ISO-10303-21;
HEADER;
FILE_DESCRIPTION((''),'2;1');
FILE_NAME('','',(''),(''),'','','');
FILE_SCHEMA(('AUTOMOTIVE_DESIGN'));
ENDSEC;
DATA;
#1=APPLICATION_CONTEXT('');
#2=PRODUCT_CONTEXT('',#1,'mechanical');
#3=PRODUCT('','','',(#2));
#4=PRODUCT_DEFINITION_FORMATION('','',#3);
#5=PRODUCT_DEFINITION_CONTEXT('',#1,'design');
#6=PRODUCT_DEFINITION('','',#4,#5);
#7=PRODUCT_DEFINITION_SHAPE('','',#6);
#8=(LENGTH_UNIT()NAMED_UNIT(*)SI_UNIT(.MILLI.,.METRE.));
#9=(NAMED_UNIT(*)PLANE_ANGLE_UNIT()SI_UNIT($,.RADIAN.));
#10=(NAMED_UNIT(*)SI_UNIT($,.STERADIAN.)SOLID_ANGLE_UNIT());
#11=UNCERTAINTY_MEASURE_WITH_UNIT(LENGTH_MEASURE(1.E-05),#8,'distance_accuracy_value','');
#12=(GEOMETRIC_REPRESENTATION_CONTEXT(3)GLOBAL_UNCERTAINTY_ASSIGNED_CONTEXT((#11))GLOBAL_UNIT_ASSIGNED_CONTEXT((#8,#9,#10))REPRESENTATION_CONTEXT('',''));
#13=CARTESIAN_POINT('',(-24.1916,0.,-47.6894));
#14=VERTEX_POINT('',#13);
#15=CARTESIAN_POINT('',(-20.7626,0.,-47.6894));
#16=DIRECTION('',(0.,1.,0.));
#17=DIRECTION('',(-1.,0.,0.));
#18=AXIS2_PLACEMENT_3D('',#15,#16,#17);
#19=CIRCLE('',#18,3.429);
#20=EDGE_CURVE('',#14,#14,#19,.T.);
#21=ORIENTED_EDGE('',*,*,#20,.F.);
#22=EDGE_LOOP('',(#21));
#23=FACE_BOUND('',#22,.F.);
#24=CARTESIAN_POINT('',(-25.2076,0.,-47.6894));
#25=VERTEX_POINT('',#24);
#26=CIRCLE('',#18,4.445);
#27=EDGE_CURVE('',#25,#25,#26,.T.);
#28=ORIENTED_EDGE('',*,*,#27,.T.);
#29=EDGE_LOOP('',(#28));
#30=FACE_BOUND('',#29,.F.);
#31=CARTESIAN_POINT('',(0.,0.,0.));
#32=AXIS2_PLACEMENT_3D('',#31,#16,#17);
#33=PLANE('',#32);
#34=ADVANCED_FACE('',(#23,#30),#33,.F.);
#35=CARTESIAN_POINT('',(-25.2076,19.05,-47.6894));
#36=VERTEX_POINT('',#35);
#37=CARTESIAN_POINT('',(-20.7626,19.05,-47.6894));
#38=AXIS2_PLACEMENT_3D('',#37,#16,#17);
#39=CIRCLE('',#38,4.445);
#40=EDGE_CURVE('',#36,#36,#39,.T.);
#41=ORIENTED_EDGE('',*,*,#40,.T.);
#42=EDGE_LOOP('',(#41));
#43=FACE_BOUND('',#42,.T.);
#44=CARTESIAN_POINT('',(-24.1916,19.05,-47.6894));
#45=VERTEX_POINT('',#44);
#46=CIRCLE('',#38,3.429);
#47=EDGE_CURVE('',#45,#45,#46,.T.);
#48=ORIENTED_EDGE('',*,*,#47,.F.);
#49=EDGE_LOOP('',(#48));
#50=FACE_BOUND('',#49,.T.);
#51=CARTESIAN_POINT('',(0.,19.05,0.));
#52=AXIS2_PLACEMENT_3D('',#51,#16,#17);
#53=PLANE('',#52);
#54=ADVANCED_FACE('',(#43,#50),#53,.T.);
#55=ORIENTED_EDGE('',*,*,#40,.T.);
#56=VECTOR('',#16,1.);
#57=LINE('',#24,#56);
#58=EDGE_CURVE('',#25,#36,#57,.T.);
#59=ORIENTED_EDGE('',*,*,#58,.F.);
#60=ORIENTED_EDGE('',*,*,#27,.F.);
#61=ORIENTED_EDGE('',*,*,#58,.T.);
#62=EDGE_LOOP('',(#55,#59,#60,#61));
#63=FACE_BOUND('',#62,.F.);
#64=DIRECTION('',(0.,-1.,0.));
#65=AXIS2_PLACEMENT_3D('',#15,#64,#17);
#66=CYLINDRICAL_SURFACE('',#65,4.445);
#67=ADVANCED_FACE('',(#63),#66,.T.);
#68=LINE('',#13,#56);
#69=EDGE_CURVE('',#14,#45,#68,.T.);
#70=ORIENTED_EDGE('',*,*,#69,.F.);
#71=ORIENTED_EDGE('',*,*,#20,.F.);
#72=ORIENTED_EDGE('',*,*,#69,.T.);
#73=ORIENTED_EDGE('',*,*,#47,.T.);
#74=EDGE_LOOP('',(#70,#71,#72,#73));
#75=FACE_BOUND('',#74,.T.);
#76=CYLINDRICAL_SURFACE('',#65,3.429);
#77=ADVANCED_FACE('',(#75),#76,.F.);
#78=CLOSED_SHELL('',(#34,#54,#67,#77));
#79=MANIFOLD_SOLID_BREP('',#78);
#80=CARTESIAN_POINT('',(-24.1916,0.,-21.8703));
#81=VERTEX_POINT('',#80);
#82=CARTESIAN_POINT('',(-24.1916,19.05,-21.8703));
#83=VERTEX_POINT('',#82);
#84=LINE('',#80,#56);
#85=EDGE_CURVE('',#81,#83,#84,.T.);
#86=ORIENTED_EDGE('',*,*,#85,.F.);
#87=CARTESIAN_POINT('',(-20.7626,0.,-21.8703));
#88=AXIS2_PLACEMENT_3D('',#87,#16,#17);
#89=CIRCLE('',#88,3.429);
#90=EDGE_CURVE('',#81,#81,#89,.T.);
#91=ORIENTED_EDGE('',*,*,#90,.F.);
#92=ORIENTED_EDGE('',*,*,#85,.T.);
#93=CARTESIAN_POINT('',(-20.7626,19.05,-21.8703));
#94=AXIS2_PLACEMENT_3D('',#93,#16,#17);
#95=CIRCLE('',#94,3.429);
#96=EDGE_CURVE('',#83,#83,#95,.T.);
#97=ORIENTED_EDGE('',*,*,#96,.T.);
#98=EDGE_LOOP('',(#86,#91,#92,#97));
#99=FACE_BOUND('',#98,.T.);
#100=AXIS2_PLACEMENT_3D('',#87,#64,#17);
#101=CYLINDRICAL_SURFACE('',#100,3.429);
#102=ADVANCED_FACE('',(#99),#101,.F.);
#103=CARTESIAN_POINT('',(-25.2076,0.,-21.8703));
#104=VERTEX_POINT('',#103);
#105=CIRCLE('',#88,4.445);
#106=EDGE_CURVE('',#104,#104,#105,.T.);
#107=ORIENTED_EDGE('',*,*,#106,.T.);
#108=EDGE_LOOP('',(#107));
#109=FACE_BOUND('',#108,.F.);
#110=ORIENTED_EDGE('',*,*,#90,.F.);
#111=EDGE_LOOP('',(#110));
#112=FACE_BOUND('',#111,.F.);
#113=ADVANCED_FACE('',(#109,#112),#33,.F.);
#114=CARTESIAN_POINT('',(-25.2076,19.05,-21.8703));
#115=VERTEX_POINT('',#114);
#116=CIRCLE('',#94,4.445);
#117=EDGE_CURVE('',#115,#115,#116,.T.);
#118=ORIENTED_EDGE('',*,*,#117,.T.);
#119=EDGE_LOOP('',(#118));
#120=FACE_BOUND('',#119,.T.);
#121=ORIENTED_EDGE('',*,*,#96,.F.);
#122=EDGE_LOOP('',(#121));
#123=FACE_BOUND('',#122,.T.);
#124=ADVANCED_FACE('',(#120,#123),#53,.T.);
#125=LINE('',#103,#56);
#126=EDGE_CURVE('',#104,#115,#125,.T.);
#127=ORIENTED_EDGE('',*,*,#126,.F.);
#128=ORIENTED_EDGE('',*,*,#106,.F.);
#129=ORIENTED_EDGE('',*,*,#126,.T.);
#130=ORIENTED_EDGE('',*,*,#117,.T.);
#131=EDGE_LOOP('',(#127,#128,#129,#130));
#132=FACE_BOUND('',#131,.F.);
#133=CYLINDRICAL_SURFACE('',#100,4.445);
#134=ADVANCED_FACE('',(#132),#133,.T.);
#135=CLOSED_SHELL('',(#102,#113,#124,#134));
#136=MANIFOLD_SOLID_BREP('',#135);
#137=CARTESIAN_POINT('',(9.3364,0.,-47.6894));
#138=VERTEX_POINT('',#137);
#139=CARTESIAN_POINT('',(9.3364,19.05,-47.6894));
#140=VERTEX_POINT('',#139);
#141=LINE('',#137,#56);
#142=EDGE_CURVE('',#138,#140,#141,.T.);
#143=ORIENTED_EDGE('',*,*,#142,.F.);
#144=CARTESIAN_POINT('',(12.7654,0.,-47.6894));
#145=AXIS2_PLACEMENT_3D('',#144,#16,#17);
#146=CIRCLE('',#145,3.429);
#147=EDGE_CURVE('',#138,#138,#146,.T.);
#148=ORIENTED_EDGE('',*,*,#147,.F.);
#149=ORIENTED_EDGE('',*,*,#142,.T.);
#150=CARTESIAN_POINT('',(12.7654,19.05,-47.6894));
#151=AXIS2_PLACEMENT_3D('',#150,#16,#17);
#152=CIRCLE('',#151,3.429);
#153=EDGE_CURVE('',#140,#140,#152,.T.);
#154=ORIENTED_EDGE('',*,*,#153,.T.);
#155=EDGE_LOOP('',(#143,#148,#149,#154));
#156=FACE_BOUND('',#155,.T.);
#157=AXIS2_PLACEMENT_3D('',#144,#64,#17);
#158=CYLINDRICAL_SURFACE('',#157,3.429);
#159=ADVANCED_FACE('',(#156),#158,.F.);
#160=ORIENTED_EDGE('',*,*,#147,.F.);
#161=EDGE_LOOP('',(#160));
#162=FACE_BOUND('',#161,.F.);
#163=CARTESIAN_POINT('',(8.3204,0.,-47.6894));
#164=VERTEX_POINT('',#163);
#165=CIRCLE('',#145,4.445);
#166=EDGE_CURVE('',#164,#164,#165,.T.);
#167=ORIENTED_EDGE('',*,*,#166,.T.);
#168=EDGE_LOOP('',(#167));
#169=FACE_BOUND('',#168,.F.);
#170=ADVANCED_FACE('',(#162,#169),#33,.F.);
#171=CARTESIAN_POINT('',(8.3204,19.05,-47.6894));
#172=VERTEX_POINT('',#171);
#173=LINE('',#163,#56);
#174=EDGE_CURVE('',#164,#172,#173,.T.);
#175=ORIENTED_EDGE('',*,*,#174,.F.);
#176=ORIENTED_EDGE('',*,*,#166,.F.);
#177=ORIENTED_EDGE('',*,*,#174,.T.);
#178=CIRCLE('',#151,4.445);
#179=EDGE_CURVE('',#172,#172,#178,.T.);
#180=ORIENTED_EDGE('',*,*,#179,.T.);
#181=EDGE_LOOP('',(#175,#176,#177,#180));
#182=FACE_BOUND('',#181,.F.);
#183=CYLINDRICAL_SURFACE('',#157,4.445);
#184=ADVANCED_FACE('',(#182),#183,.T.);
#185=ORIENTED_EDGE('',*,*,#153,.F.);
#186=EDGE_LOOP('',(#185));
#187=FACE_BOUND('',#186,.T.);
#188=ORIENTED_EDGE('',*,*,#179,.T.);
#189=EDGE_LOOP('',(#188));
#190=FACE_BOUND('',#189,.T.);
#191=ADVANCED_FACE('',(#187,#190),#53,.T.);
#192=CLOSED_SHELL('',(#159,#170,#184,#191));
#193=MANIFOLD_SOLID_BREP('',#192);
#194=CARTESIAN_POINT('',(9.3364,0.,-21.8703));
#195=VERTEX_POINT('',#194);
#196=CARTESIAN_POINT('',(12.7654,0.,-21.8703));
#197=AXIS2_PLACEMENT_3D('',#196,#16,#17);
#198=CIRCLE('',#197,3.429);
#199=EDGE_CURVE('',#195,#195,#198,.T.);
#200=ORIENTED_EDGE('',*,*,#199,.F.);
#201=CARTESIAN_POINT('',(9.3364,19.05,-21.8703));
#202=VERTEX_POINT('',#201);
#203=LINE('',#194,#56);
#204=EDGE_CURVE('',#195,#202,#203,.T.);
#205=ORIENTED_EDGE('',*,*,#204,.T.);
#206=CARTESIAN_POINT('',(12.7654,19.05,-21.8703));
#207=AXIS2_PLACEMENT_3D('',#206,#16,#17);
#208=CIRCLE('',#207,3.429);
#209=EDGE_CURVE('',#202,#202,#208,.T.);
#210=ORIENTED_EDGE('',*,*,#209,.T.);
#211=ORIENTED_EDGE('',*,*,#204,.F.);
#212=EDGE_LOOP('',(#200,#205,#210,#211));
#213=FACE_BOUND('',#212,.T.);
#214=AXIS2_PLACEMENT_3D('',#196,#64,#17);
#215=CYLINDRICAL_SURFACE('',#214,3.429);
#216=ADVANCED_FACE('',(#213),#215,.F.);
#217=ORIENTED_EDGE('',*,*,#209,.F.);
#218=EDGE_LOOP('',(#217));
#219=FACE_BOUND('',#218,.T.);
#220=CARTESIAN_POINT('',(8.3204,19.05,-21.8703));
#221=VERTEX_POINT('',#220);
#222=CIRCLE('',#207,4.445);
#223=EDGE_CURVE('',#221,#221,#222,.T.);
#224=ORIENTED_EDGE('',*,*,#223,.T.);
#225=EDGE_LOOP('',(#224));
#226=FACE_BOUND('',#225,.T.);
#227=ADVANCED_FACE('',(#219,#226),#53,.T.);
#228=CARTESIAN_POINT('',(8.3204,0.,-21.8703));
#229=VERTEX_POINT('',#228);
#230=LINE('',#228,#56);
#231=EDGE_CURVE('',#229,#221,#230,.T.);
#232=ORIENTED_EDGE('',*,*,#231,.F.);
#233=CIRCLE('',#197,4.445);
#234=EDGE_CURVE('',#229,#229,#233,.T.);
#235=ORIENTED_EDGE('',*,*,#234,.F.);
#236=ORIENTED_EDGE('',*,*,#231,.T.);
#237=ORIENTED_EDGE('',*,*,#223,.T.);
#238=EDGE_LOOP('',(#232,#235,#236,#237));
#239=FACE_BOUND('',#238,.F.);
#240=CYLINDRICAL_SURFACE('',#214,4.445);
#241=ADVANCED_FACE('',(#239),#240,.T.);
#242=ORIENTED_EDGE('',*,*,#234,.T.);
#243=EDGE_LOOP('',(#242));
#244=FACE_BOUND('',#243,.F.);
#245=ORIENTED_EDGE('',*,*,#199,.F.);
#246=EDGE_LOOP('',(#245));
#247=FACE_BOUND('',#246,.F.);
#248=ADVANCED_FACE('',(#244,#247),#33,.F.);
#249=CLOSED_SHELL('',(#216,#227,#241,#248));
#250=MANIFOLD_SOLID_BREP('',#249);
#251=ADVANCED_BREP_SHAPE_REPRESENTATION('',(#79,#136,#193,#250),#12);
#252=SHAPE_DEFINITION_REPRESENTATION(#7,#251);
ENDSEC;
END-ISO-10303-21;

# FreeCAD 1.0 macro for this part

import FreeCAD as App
import Part
import Sketcher
Q = App.Units.Quantity

doc = App.newDocument("Part")
body = doc.addObject("PartDesign::Body", "Body")
body.AllowCompound = True

sketch1 = body.newObject("Sketcher::SketchObject", "Sketch")
sketch1.AttachmentSupport = (doc.getObject("XZ_Plane"), [""])
sketch1.MapMode = "FlatFace"
sketch1.addGeometry(Part.Circle(App.Vector(12.8, -21.9, 0), App.Vector(0, 0, 1), 4.4), False)
sketch1.addGeometry(Part.Circle(App.Vector(12.8, -21.9, 0), App.Vector(0, 0, 1), 3.4), False)
sketch1.addGeometry(Part.Circle(App.Vector(12.8, -47.7, 0), App.Vector(0, 0, 1), 4.4), False)
sketch1.addGeometry(Part.Circle(App.Vector(12.8, -47.7, 0), App.Vector(0, 0, 1), 3.4), False)
sketch1.addGeometry(Part.Circle(App.Vector(-20.8, -47.7, 0), App.Vector(0, 0, 1), 4.4), False)
sketch1.addGeometry(Part.Circle(App.Vector(-20.8, -47.7, 0), App.Vector(0, 0, 1), 3.4), False)
sketch1.addGeometry(Part.Circle(App.Vector(-20.8, -21.9, 0), App.Vector(0, 0, 1), 4.4), False)
sketch1.addGeometry(Part.Circle(App.Vector(-20.8, -21.9, 0), App.Vector(0, 0, 1), 3.4), False)
sketch1.addConstraint(Sketcher.Constraint("Coincident", 1, 3, 0, 3))
sketch1.addConstraint(Sketcher.Constraint("Coincident", 3, 3, 2, 3))
sketch1.addConstraint(Sketcher.Constraint("Coincident", 5, 3, 4, 3))
sketch1.addConstraint(Sketcher.Constraint("Coincident", 7, 3, 6, 3))
sketch1.addConstraint(Sketcher.Constraint("Equal", 0, 2))
sketch1.addConstraint(Sketcher.Constraint("Equal", 1, 3))
sketch1.addConstraint(Sketcher.Constraint("Equal", 2, 4))
sketch1.addConstraint(Sketcher.Constraint("Equal", 3, 5))
sketch1.addConstraint(Sketcher.Constraint("Equal", 4, 6))
sketch1.addConstraint(Sketcher.Constraint("Equal", 5, 7))
sketch1.addConstraint(Sketcher.Constraint("Horizontal", 3, 3, 4, 3))
sketch1.addConstraint(Sketcher.Constraint("Horizontal", 1, 3, 6, 3))
sketch1.addConstraint(Sketcher.Constraint("Vertical", 1, 3, 2, 3))
sketch1.addConstraint(Sketcher.Constraint("Vertical", 5, 3, 6, 3))
sketch1.addConstraint(Sketcher.Constraint("Diameter", 0, Q("0.35 in")))
sketch1.addConstraint(Sketcher.Constraint("Diameter", 1, Q("0.27 in")))
sketch1.addConstraint(Sketcher.Constraint("DistanceX", 4, 3, 2, 3, Q("1.32 in")))
sketch1.addConstraint(Sketcher.Constraint("DistanceY", 2, 3, 0, 3, Q("1.0165 in")))
sketch1.addConstraint(Sketcher.Constraint("DistanceX", -1, 1, 0, 3, 12.7654))
sketch1.addConstraint(Sketcher.Constraint("DistanceY", 0, 3, -1, 1, 21.8703))
pad1 = body.newObject("PartDesign::Pad", "Pad")
pad1.Profile = sketch1
pad1.Length = Q("0.75 in")
pad1.Reversed = True

doc.recompute()
